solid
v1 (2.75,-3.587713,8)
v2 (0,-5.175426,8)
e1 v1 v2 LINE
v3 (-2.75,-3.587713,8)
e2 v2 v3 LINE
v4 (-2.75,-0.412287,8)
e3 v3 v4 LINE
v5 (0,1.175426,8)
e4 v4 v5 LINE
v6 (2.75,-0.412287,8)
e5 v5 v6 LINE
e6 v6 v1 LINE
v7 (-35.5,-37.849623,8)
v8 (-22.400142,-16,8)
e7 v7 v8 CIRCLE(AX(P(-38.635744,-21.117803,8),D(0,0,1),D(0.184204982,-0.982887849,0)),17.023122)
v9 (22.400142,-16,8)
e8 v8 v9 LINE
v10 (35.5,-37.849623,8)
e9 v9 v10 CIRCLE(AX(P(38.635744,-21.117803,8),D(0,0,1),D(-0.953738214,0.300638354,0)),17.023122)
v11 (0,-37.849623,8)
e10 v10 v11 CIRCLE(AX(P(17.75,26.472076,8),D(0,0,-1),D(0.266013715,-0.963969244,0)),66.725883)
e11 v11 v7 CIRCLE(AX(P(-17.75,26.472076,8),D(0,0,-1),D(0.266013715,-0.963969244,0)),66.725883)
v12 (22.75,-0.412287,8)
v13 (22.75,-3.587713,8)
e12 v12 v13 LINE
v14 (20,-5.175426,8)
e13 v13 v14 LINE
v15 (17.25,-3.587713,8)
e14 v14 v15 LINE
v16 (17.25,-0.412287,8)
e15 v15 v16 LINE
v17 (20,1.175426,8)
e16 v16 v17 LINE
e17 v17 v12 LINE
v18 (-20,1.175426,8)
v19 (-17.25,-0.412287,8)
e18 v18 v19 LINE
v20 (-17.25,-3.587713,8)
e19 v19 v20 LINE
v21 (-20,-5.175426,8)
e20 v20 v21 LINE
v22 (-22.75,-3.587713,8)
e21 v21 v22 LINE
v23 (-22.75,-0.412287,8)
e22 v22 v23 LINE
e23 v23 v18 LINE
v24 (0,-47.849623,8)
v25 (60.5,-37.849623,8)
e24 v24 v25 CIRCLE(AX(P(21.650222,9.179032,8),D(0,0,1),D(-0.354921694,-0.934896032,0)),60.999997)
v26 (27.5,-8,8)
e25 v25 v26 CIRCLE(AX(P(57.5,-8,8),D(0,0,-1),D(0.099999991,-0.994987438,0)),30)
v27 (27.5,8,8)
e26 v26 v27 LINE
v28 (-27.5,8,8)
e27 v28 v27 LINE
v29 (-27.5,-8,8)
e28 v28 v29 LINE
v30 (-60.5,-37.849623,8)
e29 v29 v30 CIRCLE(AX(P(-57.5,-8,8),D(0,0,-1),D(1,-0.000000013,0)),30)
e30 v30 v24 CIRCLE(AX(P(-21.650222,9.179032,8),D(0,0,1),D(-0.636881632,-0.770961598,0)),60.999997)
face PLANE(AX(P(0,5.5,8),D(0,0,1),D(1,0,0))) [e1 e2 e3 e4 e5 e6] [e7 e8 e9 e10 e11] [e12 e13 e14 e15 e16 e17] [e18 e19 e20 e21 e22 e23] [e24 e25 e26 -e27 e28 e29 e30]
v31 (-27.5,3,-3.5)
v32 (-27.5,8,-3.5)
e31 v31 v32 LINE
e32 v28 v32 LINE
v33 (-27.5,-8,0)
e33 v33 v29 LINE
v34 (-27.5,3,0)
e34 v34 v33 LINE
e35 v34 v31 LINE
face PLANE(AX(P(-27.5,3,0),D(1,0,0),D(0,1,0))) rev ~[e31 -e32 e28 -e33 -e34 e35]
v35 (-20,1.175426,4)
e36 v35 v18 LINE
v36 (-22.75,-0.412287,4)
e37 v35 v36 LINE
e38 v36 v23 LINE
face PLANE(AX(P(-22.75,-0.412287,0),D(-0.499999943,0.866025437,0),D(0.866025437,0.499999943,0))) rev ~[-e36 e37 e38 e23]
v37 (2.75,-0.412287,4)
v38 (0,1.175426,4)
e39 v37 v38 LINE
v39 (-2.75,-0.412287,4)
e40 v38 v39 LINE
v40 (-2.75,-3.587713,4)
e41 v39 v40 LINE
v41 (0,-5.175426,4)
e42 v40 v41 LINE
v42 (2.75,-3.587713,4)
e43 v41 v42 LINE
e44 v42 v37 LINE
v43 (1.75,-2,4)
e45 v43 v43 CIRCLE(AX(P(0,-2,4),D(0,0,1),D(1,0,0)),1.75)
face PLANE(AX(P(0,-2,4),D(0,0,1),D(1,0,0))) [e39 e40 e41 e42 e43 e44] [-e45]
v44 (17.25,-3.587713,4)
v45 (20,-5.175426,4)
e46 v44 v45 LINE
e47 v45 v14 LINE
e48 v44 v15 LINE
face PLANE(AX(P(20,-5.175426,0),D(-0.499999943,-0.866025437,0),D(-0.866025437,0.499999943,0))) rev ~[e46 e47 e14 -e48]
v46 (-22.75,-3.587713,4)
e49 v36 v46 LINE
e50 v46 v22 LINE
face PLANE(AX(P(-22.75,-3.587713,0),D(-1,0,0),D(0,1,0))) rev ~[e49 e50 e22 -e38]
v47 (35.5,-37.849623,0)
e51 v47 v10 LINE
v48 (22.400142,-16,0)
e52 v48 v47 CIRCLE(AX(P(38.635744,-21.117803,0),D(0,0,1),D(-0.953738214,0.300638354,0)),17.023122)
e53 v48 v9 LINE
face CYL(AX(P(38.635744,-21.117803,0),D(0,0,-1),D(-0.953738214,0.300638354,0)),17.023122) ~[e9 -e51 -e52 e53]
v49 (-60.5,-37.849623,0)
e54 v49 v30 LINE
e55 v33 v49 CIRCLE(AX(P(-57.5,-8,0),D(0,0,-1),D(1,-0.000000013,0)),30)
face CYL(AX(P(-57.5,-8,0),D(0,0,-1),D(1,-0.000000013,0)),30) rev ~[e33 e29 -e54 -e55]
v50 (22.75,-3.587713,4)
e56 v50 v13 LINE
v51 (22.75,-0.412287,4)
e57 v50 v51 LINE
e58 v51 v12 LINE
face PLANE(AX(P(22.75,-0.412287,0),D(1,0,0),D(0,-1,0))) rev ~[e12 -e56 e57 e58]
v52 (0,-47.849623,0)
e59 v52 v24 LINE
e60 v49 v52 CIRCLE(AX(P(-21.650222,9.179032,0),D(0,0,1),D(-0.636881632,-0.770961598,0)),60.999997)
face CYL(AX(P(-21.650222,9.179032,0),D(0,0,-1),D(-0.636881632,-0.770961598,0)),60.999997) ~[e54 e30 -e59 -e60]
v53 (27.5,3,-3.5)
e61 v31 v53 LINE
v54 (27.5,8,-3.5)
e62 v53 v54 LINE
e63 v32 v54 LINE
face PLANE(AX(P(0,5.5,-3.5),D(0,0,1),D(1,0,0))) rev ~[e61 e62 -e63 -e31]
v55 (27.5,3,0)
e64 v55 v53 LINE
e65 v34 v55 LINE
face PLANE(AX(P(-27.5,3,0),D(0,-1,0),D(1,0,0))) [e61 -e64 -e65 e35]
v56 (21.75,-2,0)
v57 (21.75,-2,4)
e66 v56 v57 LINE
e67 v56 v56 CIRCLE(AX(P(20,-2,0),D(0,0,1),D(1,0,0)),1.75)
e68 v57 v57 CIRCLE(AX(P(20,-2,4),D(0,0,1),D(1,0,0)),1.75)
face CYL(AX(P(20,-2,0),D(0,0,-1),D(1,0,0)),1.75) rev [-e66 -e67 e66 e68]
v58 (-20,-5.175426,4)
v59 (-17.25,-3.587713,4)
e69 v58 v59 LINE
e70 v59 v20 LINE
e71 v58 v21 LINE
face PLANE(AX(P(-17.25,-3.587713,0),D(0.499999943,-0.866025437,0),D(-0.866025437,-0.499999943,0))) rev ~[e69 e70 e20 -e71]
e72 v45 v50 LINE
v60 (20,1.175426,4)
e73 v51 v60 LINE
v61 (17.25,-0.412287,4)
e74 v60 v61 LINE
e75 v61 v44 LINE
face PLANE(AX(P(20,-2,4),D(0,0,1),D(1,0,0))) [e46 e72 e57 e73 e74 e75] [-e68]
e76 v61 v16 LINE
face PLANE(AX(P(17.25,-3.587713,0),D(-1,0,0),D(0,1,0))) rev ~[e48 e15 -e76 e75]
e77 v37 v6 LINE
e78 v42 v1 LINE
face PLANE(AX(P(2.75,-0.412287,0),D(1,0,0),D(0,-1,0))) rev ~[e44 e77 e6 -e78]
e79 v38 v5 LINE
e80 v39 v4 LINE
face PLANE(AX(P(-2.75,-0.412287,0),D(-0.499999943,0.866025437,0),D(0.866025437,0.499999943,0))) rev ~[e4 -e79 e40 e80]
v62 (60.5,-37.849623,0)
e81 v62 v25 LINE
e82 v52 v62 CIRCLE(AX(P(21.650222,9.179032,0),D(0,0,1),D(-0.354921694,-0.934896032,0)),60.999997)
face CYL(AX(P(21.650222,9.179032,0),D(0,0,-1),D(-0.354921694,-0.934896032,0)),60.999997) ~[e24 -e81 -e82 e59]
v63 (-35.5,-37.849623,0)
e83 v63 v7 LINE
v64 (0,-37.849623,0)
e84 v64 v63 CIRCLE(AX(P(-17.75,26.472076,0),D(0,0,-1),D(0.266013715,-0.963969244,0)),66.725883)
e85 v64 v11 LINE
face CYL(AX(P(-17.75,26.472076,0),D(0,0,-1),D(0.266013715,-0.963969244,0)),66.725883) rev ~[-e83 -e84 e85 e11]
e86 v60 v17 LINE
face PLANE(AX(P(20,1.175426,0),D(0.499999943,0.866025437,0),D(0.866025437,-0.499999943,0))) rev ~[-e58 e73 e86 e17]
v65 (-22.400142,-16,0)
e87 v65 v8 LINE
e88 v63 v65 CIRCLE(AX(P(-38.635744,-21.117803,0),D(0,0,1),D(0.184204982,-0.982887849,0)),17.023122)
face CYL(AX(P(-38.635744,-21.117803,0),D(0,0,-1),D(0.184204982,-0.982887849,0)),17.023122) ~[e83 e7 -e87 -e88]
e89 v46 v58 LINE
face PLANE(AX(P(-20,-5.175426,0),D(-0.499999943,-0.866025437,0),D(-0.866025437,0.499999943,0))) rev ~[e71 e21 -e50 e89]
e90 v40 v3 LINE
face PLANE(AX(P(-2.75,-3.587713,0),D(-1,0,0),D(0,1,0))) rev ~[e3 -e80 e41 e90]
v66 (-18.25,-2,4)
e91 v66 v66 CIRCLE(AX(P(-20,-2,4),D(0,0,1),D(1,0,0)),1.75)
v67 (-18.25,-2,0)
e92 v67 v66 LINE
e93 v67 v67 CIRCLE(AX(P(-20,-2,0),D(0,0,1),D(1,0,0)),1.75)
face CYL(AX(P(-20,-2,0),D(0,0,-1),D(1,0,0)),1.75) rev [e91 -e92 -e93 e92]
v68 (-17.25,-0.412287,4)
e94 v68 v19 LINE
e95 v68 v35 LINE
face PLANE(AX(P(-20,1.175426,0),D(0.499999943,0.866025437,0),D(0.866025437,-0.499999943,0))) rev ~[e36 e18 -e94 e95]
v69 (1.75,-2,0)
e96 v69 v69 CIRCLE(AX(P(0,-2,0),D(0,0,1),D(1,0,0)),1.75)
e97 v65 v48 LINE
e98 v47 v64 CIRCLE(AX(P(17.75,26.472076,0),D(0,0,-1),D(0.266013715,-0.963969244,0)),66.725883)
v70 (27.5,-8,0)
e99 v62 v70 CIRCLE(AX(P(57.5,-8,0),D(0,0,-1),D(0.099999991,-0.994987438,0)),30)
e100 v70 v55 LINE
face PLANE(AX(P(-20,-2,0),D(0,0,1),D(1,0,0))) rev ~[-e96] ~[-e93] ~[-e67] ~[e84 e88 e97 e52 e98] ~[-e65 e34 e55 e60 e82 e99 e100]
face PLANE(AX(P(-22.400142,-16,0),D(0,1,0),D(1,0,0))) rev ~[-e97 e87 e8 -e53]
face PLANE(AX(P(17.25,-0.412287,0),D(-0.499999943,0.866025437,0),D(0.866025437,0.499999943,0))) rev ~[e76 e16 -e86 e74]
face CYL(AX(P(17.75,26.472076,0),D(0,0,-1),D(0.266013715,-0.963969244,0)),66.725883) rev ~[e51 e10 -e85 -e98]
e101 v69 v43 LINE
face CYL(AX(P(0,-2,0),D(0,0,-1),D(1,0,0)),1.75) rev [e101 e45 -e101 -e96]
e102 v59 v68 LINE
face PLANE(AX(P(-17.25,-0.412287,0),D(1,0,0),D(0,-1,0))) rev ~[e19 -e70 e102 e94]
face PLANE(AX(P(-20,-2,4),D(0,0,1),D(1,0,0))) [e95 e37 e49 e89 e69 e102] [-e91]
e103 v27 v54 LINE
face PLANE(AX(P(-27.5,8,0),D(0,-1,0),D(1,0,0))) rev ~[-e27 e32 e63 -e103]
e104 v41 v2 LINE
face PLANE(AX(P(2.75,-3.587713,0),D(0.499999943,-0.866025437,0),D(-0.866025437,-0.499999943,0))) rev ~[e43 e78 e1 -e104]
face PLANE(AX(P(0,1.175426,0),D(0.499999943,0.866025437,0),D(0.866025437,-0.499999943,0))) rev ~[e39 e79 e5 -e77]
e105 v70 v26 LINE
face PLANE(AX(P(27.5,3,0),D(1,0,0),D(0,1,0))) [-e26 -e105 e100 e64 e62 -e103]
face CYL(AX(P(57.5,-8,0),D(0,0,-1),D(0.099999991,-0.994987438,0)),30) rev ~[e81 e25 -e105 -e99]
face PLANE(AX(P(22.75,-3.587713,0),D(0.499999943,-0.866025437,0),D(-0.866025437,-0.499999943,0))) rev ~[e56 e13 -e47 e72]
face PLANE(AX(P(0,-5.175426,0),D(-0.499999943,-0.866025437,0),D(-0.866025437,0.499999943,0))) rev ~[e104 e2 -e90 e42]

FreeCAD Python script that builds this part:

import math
import FreeCAD as App
import Part
import Sketcher
Q = App.Units.Quantity

doc = App.newDocument("Part")
body = doc.addObject("PartDesign::Body", "Body")

sketch1 = body.newObject("Sketcher::SketchObject", "Sketch")
sketch1.AttachmentSupport = (doc.getObject("XY_Plane"), [""])
sketch1.MapMode = "FlatFace"
sketch1.addGeometry([
    Part.LineSegment(App.Vector(-27.5, 8, 0), App.Vector(-27.5, -8, 0)),
    Part.ArcOfCircle(Part.Circle(App.Vector(-57.5, -8, 0), App.Vector(0, 0, 1), 30), math.radians(-96), math.radians(0)),
    Part.ArcOfCircle(Part.Circle(App.Vector(-21.7, 9.2, 0), App.Vector(0, 0, 1), 61), math.radians(-130), math.radians(-69)),
    Part.ArcOfCircle(Part.Circle(App.Vector(21.7, 9.2, 0), App.Vector(0, 0, 1), 61), math.radians(-111), math.radians(-50)),
    Part.ArcOfCircle(Part.Circle(App.Vector(57.5, -8, 0), App.Vector(0, 0, 1), 30), math.radians(-180), math.radians(-84)),
    Part.LineSegment(App.Vector(27.5, -8, 0), App.Vector(27.5, 8, 0)),
    Part.LineSegment(App.Vector(27.5, 8, 0), App.Vector(-27.5, 8, 0)),
    Part.ArcOfCircle(Part.Circle(App.Vector(-17.8, 26.5, 0), App.Vector(0, 0, 1), 66.7), math.radians(-105), math.radians(-75)),
    Part.ArcOfCircle(Part.Circle(App.Vector(-38.6, -21.1, 0), App.Vector(0, 0, 1), 17), math.radians(-79), math.radians(17)),
    Part.LineSegment(App.Vector(-22.4, -16, 0), App.Vector(22.4, -16, 0)),
    Part.ArcOfCircle(Part.Circle(App.Vector(38.6, -21.1, 0), App.Vector(0, 0, 1), 17), math.radians(163), math.radians(259)),
    Part.ArcOfCircle(Part.Circle(App.Vector(17.8, 26.5, 0), App.Vector(0, 0, 1), 66.7), math.radians(-105), math.radians(-75)),
    Part.LineSegment(App.Vector(-22.8, -0.4, 0), App.Vector(-20, 1.2, 0)),
    Part.LineSegment(App.Vector(-20, 1.2, 0), App.Vector(-17.2, -0.4, 0)),
    Part.LineSegment(App.Vector(-17.2, -0.4, 0), App.Vector(-17.2, -3.6, 0)),
    Part.LineSegment(App.Vector(-17.2, -3.6, 0), App.Vector(-20, -5.2, 0)),
    Part.LineSegment(App.Vector(-20, -5.2, 0), App.Vector(-22.8, -3.6, 0)),
    Part.LineSegment(App.Vector(-22.8, -3.6, 0), App.Vector(-22.8, -0.4, 0)),
    Part.LineSegment(App.Vector(2.8, -3.6, 0), App.Vector(0, -5.2, 0)),
    Part.LineSegment(App.Vector(0, -5.2, 0), App.Vector(-2.8, -3.6, 0)),
    Part.LineSegment(App.Vector(-2.8, -3.6, 0), App.Vector(-2.8, -0.4, 0)),
    Part.LineSegment(App.Vector(-2.8, -0.4, 0), App.Vector(0, 1.2, 0)),
    Part.LineSegment(App.Vector(0, 1.2, 0), App.Vector(2.8, -0.4, 0)),
    Part.LineSegment(App.Vector(2.8, -0.4, 0), App.Vector(2.8, -3.6, 0)),
    Part.LineSegment(App.Vector(20, -5.2, 0), App.Vector(17.2, -3.6, 0)),
    Part.LineSegment(App.Vector(17.2, -3.6, 0), App.Vector(17.2, -0.4, 0)),
    Part.LineSegment(App.Vector(17.2, -0.4, 0), App.Vector(20, 1.2, 0)),
    Part.LineSegment(App.Vector(20, 1.2, 0), App.Vector(22.8, -0.4, 0)),
    Part.LineSegment(App.Vector(22.8, -0.4, 0), App.Vector(22.8, -3.6, 0)),
    Part.LineSegment(App.Vector(22.8, -3.6, 0), App.Vector(20, -5.2, 0)),
], False)
sketch1.addConstraint([
    Sketcher.Constraint("Tangent", 0, 2, 1, 2),
    Sketcher.Constraint("Coincident", 1, 1, 2, 1),
    Sketcher.Constraint("Coincident", 2, 2, 3, 1),
    Sketcher.Constraint("Coincident", 3, 2, 4, 2),
    Sketcher.Constraint("Tangent", 4, 1, 5, 1),
    Sketcher.Constraint("Coincident", 5, 2, 6, 1),
    Sketcher.Constraint("Coincident", 6, 2, 0, 1),
    Sketcher.Constraint("Coincident", 7, 1, 8, 1),
    Sketcher.Constraint("Coincident", 8, 2, 9, 1),
    Sketcher.Constraint("Coincident", 9, 2, 10, 1),
    Sketcher.Constraint("Coincident", 10, 2, 11, 2),
    Sketcher.Constraint("Coincident", 11, 1, 7, 2),
    Sketcher.Constraint("Coincident", 12, 2, 13, 1),
    Sketcher.Constraint("Coincident", 13, 2, 14, 1),
    Sketcher.Constraint("Coincident", 14, 2, 15, 1),
    Sketcher.Constraint("Coincident", 15, 2, 16, 1),
    Sketcher.Constraint("Coincident", 16, 2, 17, 1),
    Sketcher.Constraint("Coincident", 17, 2, 12, 1),
    Sketcher.Constraint("Coincident", 18, 2, 19, 1),
    Sketcher.Constraint("Coincident", 19, 2, 20, 1),
    Sketcher.Constraint("Coincident", 20, 2, 21, 1),
    Sketcher.Constraint("Coincident", 21, 2, 22, 1),
    Sketcher.Constraint("Coincident", 22, 2, 23, 1),
    Sketcher.Constraint("Coincident", 23, 2, 18, 1),
    Sketcher.Constraint("Coincident", 24, 2, 25, 1),
    Sketcher.Constraint("Coincident", 25, 2, 26, 1),
    Sketcher.Constraint("Coincident", 26, 2, 27, 1),
    Sketcher.Constraint("Coincident", 27, 2, 28, 1),
    Sketcher.Constraint("Coincident", 28, 2, 29, 1),
    Sketcher.Constraint("Coincident", 29, 2, 24, 1),
    Sketcher.Constraint("Vertical", 0),
    Sketcher.Constraint("Vertical", 5),
    Sketcher.Constraint("Horizontal", 6),
    Sketcher.Constraint("Horizontal", 9),
    Sketcher.Constraint("Vertical", 14),
    Sketcher.Constraint("Vertical", 17),
    Sketcher.Constraint("Vertical", 20),
    Sketcher.Constraint("Vertical", 23),
    Sketcher.Constraint("Vertical", 25),
    Sketcher.Constraint("Vertical", 28),
    Sketcher.Constraint("Equal", 2, 3),
    Sketcher.Constraint("Equal", 1, 4),
    Sketcher.Constraint("Equal", 8, 10),
    Sketcher.Constraint("Equal", 7, 11),
    Sketcher.Constraint("Symmetric", 0, 2, 5, 2, -1, 1),
    Sketcher.Constraint("Symmetric", 2, 3, 3, 3, -2),
    Sketcher.Constraint("Symmetric", 8, 3, 10, 3, -2),
    Sketcher.Constraint("Symmetric", 7, 3, 11, 3, -2),
    Sketcher.Constraint("Symmetric", 20, 2, 22, 2, -2),
    Sketcher.Constraint("Symmetric", 14, 2, 24, 2, -2),
    Sketcher.Constraint("Symmetric", 12, 2, 26, 2, -2),
    Sketcher.Constraint("Symmetric", 17, 2, 27, 2, -2),
    Sketcher.Constraint("Symmetric", 15, 2, 29, 2, -2),
    Sketcher.Constraint("PointOnObject", 18, 2, -2),
    Sketcher.Constraint("PointOnObject", 21, 2, -2),
    Sketcher.Constraint("Parallel", 12, 15),
    Sketcher.Constraint("Parallel", 13, 16),
    Sketcher.Constraint("Parallel", 15, 18),
    Sketcher.Constraint("Parallel", 16, 19),
    Sketcher.Constraint("Parallel", 18, 21),
    Sketcher.Constraint("Parallel", 19, 22),
    Sketcher.Constraint("Parallel", 21, 26),
    Sketcher.Constraint("Parallel", 26, 29),
    Sketcher.Constraint("Horizontal", 1, 3, 4, 3),
    Sketcher.Constraint("Horizontal", 3, 2, 7, 1),
    Sketcher.Constraint("Horizontal", 10, 2, 11, 1),
    Sketcher.Constraint("Horizontal", 14, 2, 16, 2),
    Sketcher.Constraint("Horizontal", 13, 2, 17, 2),
    Sketcher.Constraint("Horizontal", 15, 2, 18, 2),
    Sketcher.Constraint("Horizontal", 16, 2, 19, 2),
    Sketcher.Constraint("Horizontal", 17, 2, 20, 2),
    Sketcher.Constraint("Radius", 1, 30.0),
    Sketcher.Constraint("DistanceX", 6, 2, 6, 1, 55.0),
    Sketcher.Constraint("DistanceY", 0, 2, 0, 1, 16.0),
    Sketcher.Constraint("Angle", 12, Q("29.999996 deg")),
    Sketcher.Constraint("DistanceY", 8, 2, -1, 1, 16.0),
    Sketcher.Constraint("DistanceX", 12, 2, -1, 1, 20.0),
    Sketcher.Constraint("DistanceX", 1, 1, 1, 3, 3.0),
    Sketcher.Constraint("DistanceY", 2, 2, 3, 2, 10.0),
    Sketcher.Constraint("DistanceX", 1, 1, 7, 1, 25.0),
    Sketcher.Constraint("DistanceX", 16, 2, 14, 2, 5.5),
    Sketcher.Constraint("Radius", 8, 17.023122),
    Sketcher.Constraint("Radius", 2, 60.999997),
    Sketcher.Constraint("Radius", 7, 66.725883),
    Sketcher.Constraint("DistanceX", 8, 3, 8, 2, 16.235602),
    Sketcher.Constraint("DistanceY", 14, 2, 14, 1, 3.175426),
    Sketcher.Constraint("DistanceY", 12, 2, 7, 3, 25.29665),
])
pad1 = body.newObject("PartDesign::Pad", "Pad")
pad1.Profile = sketch1
pad1.Length = 8

sketch2 = body.newObject("Sketcher::SketchObject", "Sketch001")
sketch2.AttachmentSupport = (doc.getObject("XY_Plane"), [""])
sketch2.MapMode = "FlatFace"
sketch2.addGeometry([
    Part.LineSegment(App.Vector(-17.2, -3.6, 0), App.Vector(-17.2, -0.4, 0)),
    Part.LineSegment(App.Vector(-17.2, -0.4, 0), App.Vector(-20, 1.2, 0)),
    Part.LineSegment(App.Vector(-20, 1.2, 0), App.Vector(-22.8, -0.4, 0)),
    Part.LineSegment(App.Vector(-22.8, -0.4, 0), App.Vector(-22.8, -3.6, 0)),
    Part.LineSegment(App.Vector(-22.8, -3.6, 0), App.Vector(-20, -5.2, 0)),
    Part.LineSegment(App.Vector(-20, -5.2, 0), App.Vector(-17.2, -3.6, 0)),
    Part.Circle(App.Vector(-20, -2, 0), App.Vector(0, 0, 1), 1.8),
    Part.LineSegment(App.Vector(-2.8, -0.4, 0), App.Vector(-2.8, -3.6, 0)),
    Part.LineSegment(App.Vector(-2.8, -3.6, 0), App.Vector(0, -5.2, 0)),
    Part.LineSegment(App.Vector(0, -5.2, 0), App.Vector(2.8, -3.6, 0)),
    Part.LineSegment(App.Vector(2.8, -3.6, 0), App.Vector(2.8, -0.4, 0)),
    Part.LineSegment(App.Vector(2.8, -0.4, 0), App.Vector(0, 1.2, 0)),
    Part.LineSegment(App.Vector(0, 1.2, 0), App.Vector(-2.8, -0.4, 0)),
    Part.Circle(App.Vector(0, -2, 0), App.Vector(0, 0, 1), 1.8),
    Part.LineSegment(App.Vector(20, 1.2, 0), App.Vector(17.2, -0.4, 0)),
    Part.LineSegment(App.Vector(17.2, -0.4, 0), App.Vector(17.2, -3.6, 0)),
    Part.LineSegment(App.Vector(17.2, -3.6, 0), App.Vector(20, -5.2, 0)),
    Part.LineSegment(App.Vector(20, -5.2, 0), App.Vector(22.8, -3.6, 0)),
    Part.LineSegment(App.Vector(22.8, -3.6, 0), App.Vector(22.8, -0.4, 0)),
    Part.LineSegment(App.Vector(22.8, -0.4, 0), App.Vector(20, 1.2, 0)),
    Part.Circle(App.Vector(20, -2, 0), App.Vector(0, 0, 1), 1.8),
], False)
sketch2.addConstraint([
    Sketcher.Constraint("Coincident", 0, 2, 1, 1),
    Sketcher.Constraint("Coincident", 1, 2, 2, 1),
    Sketcher.Constraint("Coincident", 2, 2, 3, 1),
    Sketcher.Constraint("Coincident", 3, 2, 4, 1),
    Sketcher.Constraint("Coincident", 4, 2, 5, 1),
    Sketcher.Constraint("Coincident", 5, 2, 0, 1),
    Sketcher.Constraint("Coincident", 7, 2, 8, 1),
    Sketcher.Constraint("Coincident", 8, 2, 9, 1),
    Sketcher.Constraint("Coincident", 9, 2, 10, 1),
    Sketcher.Constraint("Coincident", 10, 2, 11, 1),
    Sketcher.Constraint("Coincident", 11, 2, 12, 1),
    Sketcher.Constraint("Coincident", 12, 2, 7, 1),
    Sketcher.Constraint("Coincident", 14, 2, 15, 1),
    Sketcher.Constraint("Coincident", 15, 2, 16, 1),
    Sketcher.Constraint("Coincident", 16, 2, 17, 1),
    Sketcher.Constraint("Coincident", 17, 2, 18, 1),
    Sketcher.Constraint("Coincident", 18, 2, 19, 1),
    Sketcher.Constraint("Coincident", 19, 2, 14, 1),
    Sketcher.Constraint("Vertical", 0),
    Sketcher.Constraint("Vertical", 3),
    Sketcher.Constraint("Vertical", 7),
    Sketcher.Constraint("Vertical", 10),
    Sketcher.Constraint("Vertical", 15),
    Sketcher.Constraint("Vertical", 18),
    Sketcher.Constraint("Equal", 6, 13),
    Sketcher.Constraint("Equal", 13, 20),
    Sketcher.Constraint("Symmetric", 6, 3, 20, 3, -2),
    Sketcher.Constraint("Symmetric", 7, 2, 9, 2, -2),
    Sketcher.Constraint("Symmetric", 0, 2, 14, 2, -2),
    Sketcher.Constraint("Symmetric", 4, 2, 16, 2, -2),
    Sketcher.Constraint("Symmetric", 3, 2, 17, 2, -2),
    Sketcher.Constraint("Symmetric", 1, 2, 19, 2, -2),
    Sketcher.Constraint("PointOnObject", 13, 3, -2),
    Sketcher.Constraint("PointOnObject", 8, 2, -2),
    Sketcher.Constraint("PointOnObject", 11, 2, -2),
    Sketcher.Constraint("Parallel", 1, 4),
    Sketcher.Constraint("Parallel", 2, 5),
    Sketcher.Constraint("Parallel", 4, 8),
    Sketcher.Constraint("Parallel", 5, 9),
    Sketcher.Constraint("Parallel", 8, 11),
    Sketcher.Constraint("Parallel", 9, 12),
    Sketcher.Constraint("Parallel", 11, 16),
    Sketcher.Constraint("Parallel", 16, 19),
    Sketcher.Constraint("Horizontal", 6, 3, 13, 3),
    Sketcher.Constraint("Horizontal", 0, 2, 2, 2),
    Sketcher.Constraint("Horizontal", 3, 2, 5, 2),
    Sketcher.Constraint("Horizontal", 5, 2, 7, 2),
    Sketcher.Constraint("Horizontal", 4, 2, 8, 2),
    Sketcher.Constraint("Horizontal", 2, 2, 10, 2),
    Sketcher.Constraint("Vertical", 6, 3, 1, 2),
    Sketcher.Constraint("Diameter", 6, 3.5),
    Sketcher.Constraint("Angle", 1, Q("150.000004 deg")),
    Sketcher.Constraint("DistanceX", 6, 3, -1, 1, 20.0),
    Sketcher.Constraint("DistanceY", 6, 3, -1, 1, 2.0),
    Sketcher.Constraint("DistanceX", 2, 2, 0, 2, 5.5),
    Sketcher.Constraint("DistanceY", 0, 1, 0, 2, 3.175426),
    Sketcher.Constraint("DistanceY", 0, 2, -1, 1, 0.412287),
])
pad2 = body.newObject("PartDesign::Pad", "Pad001")
pad2.Profile = sketch2
pad2.Length = 4

sketch3 = body.newObject("Sketcher::SketchObject", "Sketch002")
sketch3.AttachmentSupport = (doc.getObject("XY_Plane"), [""])
sketch3.MapMode = "FlatFace"
sketch3.addGeometry([
    Part.LineSegment(App.Vector(-28, 8, 0), App.Vector(-28, 3, 0)),
    Part.LineSegment(App.Vector(-28, 3, 0), App.Vector(28, 3, 0)),
    Part.LineSegment(App.Vector(28, 3, 0), App.Vector(28, 8, 0)),
    Part.LineSegment(App.Vector(28, 8, 0), App.Vector(-28, 8, 0)),
], False)
sketch3.addConstraint([
    Sketcher.Constraint("Coincident", 0, 2, 1, 1),
    Sketcher.Constraint("Coincident", 1, 2, 2, 1),
    Sketcher.Constraint("Coincident", 2, 2, 3, 1),
    Sketcher.Constraint("Coincident", 3, 2, 0, 1),
    Sketcher.Constraint("Vertical", 0),
    Sketcher.Constraint("Horizontal", 1),
    Sketcher.Constraint("Vertical", 2),
    Sketcher.Constraint("Horizontal", 3),
    Sketcher.Constraint("DistanceX", 1, 1, 1, 2, 55.0),
    Sketcher.Constraint("DistanceY", 0, 2, 0, 1, 5.0),
    Sketcher.Constraint("DistanceY", -1, 1, 0, 2, 3.0),
    Sketcher.Constraint("DistanceX", 0, 2, -1, 1, 27.5),
])
pad3 = body.newObject("PartDesign::Pad", "Pad002")
pad3.Profile = sketch3
pad3.Length = 3.5
pad3.Reversed = True

doc.recompute()
